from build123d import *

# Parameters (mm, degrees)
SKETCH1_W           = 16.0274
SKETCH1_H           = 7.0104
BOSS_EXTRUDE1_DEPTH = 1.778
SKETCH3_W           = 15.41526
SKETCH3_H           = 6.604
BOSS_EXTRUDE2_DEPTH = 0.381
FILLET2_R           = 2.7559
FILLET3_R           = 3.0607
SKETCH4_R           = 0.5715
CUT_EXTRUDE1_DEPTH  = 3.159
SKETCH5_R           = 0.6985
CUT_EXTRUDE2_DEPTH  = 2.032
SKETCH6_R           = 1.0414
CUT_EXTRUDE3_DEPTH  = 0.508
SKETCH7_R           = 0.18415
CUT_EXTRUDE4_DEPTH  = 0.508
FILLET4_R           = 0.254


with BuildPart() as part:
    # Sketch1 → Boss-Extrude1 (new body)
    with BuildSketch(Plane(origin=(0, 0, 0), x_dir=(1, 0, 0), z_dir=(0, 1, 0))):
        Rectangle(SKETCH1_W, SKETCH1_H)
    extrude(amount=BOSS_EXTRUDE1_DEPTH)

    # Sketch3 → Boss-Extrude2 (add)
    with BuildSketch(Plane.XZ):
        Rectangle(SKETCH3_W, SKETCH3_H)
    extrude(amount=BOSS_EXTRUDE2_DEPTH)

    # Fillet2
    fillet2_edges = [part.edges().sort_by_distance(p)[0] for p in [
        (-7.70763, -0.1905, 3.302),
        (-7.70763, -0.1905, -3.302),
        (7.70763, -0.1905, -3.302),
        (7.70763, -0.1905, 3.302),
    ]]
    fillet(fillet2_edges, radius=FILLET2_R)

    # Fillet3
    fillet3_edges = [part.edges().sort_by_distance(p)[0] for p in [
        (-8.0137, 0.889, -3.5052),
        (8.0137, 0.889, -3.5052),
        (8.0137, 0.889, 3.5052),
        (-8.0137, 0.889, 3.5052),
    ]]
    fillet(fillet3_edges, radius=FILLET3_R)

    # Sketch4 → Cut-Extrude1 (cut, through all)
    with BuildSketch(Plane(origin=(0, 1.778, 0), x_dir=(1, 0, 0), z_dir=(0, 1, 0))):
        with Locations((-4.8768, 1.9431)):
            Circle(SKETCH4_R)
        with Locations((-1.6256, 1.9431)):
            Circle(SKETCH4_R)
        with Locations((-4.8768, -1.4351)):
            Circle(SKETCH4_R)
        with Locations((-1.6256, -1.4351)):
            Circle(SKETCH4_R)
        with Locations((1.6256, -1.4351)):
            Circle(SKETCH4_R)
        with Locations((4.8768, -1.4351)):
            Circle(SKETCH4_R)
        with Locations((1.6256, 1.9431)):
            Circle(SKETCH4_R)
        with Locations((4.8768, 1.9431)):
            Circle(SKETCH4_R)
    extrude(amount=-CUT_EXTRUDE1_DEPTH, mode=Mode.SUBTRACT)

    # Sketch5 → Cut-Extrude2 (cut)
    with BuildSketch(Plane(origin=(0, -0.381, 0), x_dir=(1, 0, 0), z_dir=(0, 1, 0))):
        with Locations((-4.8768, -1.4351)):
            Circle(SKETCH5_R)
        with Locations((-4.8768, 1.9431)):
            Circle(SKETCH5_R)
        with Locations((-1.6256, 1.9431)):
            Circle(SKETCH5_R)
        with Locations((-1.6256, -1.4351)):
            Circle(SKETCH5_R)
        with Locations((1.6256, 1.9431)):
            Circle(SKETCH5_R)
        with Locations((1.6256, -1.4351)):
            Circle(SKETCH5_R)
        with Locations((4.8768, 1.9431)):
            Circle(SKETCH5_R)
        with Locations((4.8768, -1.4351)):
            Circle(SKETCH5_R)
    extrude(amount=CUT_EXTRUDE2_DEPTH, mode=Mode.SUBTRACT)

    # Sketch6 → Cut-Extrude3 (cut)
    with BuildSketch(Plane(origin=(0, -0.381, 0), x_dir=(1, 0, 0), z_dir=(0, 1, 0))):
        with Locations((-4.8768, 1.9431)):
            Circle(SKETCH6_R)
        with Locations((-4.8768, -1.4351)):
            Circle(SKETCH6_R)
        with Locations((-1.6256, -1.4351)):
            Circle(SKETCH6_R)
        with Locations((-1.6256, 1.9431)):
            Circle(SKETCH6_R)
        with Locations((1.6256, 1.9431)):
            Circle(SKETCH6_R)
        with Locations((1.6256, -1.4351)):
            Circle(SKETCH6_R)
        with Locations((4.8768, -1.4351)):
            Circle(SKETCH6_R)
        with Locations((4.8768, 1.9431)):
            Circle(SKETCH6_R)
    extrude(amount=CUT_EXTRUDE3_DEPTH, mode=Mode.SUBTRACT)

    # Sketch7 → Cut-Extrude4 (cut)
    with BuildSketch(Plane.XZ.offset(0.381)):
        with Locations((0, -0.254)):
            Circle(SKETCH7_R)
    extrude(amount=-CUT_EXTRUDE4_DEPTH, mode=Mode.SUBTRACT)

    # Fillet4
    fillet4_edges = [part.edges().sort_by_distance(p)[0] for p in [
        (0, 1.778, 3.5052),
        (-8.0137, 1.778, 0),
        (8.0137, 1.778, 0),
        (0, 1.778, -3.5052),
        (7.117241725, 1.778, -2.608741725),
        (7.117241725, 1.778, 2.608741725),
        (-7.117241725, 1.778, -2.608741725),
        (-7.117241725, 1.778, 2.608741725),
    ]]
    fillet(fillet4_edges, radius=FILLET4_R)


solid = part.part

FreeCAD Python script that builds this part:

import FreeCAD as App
import Part
import Sketcher
Q = App.Units.Quantity


def edges_at(feature, points):
    """Names of the edges that pass closest to the given points."""
    edges = feature.Shape.Edges
    near = lambda p: min(range(len(edges)), key=lambda i: edges[i].distToShape(Part.Vertex(*p))[0])
    return sorted({f"Edge{near(p) + 1}" for p in points})


def add_polygon(sketch, points):
    """Adds a closed chain of lines whose ends are joined by coincident constraints."""
    first, n = sketch.GeometryCount, len(points)
    for a, b in zip(points, points[1:] + points[:1]):
        sketch.addGeometry(Part.LineSegment(App.Vector(*a, 0), App.Vector(*b, 0)), False)
    for i in range(n):
        sketch.addConstraint(Sketcher.Constraint("Coincident", first + i, 2, first + (i + 1) % n, 1))

doc = App.newDocument("Part")
params = doc.addObject("Spreadsheet::Sheet", "Params")
for row, (alias, value) in enumerate([
    ("sketch1_width", "0.631 in"),
    ("sketch1_height", "0.276 in"),
    ("pad1_length", "0.07 in"),
    ("sketch2_height", "0.26 in"),
    ("pad2_length", "0.015 in"),
    ("fillet_radius", "0.1085 in"),
    ("fillet2_radius", "0.1205 in"),
    ("sketch3_diameter", "0.045 in"),
    ("sketch4_diameter", "0.055 in"),
    ("pocket2_length", "0.08 in"),
    ("sketch5_diameter", "0.082 in"),
    ("pocket3_length", "0.02 in"),
    ("pocket4_length", "0.02 in"),
    ("fillet3_radius", "0.01 in"),
], start=1):
    params.set(f"A{row}", alias)
    params.set(f"B{row}", "=" + value)
    params.setAlias(f"B{row}", alias)

body = doc.addObject("PartDesign::Body", "Body")

sketch1 = body.newObject("Sketcher::SketchObject", "Sketch")
sketch1.AttachmentSupport = (doc.getObject("XZ_Plane"), [""])
sketch1.MapMode = "FlatFace"
add_polygon(sketch1, [(-8, -4), (-8, 4), (8, 4), (8, -4)])
sketch1.addConstraint([
    Sketcher.Constraint("Vertical", 0),
    Sketcher.Constraint("Horizontal", 1),
    Sketcher.Constraint("Vertical", 2),
    Sketcher.Constraint("Horizontal", 3),
    Sketcher.Constraint("Symmetric", 0, 2, 2, 2, -1, 1),
    Sketcher.Constraint("DistanceX", 1, 1, 1, 2, Q("0.631 in")),
    Sketcher.Constraint("DistanceY", 0, 1, 0, 2, Q("0.276 in")),
])
sketch1.setExpression("Constraints[9]", "Params.sketch1_width")
sketch1.setExpression("Constraints[10]", "Params.sketch1_height")
pad1 = body.newObject("PartDesign::Pad", "Pad")
pad1.Profile = sketch1
pad1.setExpression("Length", "Params.pad1_length")
pad1.Reversed = True

sketch2 = body.newObject("Sketcher::SketchObject", "Sketch001")
sketch2.AttachmentSupport = (doc.getObject("XZ_Plane"), [""])
sketch2.MapMode = "FlatFace"
add_polygon(sketch2, [(-8, 3), (-8, -3), (8, -3), (8, 3)])
sketch2.addConstraint([
    Sketcher.Constraint("Vertical", 0),
    Sketcher.Constraint("Horizontal", 1),
    Sketcher.Constraint("Vertical", 2),
    Sketcher.Constraint("Horizontal", 3),
    Sketcher.Constraint("Symmetric", 0, 2, 2, 2, -1, 1),
    Sketcher.Constraint("DistanceY", 0, 2, 0, 1, Q("0.26 in")),
    Sketcher.Constraint("DistanceX", 1, 1, 1, 2, Q("0.6069 in")),
])
sketch2.setExpression("Constraints[9]", "Params.sketch2_height")
pad2 = body.newObject("PartDesign::Pad", "Pad001")
pad2.Profile = sketch2
pad2.setExpression("Length", "Params.pad2_length")
doc.recompute()

fillet = body.newObject("PartDesign::Fillet", "Fillet")
fillet.Base = (pad2, edges_at(pad2, [
    (-7.708, -0.191, 3.302),
    (-7.708, -0.191, -3.302),
    (7.708, -0.191, -3.302),
    (7.708, -0.191, 3.302),
]))
fillet.setExpression("Radius", "Params.fillet_radius")
doc.recompute()

fillet2 = body.newObject("PartDesign::Fillet", "Fillet001")
fillet2.Base = (fillet, edges_at(fillet, [
    (-8.014, 0.889, -3.505),
    (8.014, 0.889, -3.505),
    (8.014, 0.889, 3.505),
    (-8.014, 0.889, 3.505),
]))
fillet2.setExpression("Radius", "Params.fillet2_radius")

sketch3 = body.newObject("Sketcher::SketchObject", "Sketch002")
sketch3.AttachmentSupport = (doc.getObject("XZ_Plane"), [""])
sketch3.MapMode = "FlatFace"
sketch3.AttachmentOffset = App.Placement(App.Vector(0, 0, -0.07 * 25.4), App.Rotation())
sketch3.addGeometry([
    Part.Circle(App.Vector(-4.9, -1.9, 0), App.Vector(0, 0, 1), 0.6),
    Part.Circle(App.Vector(-1.6, -1.9, 0), App.Vector(0, 0, 1), 0.6),
    Part.Circle(App.Vector(-4.9, 1.4, 0), App.Vector(0, 0, 1), 0.6),
    Part.Circle(App.Vector(-1.6, 1.4, 0), App.Vector(0, 0, 1), 0.6),
    Part.Circle(App.Vector(1.6, 1.4, 0), App.Vector(0, 0, 1), 0.6),
    Part.Circle(App.Vector(4.9, 1.4, 0), App.Vector(0, 0, 1), 0.6),
    Part.Circle(App.Vector(1.6, -1.9, 0), App.Vector(0, 0, 1), 0.6),
    Part.Circle(App.Vector(4.9, -1.9, 0), App.Vector(0, 0, 1), 0.6),
], False)
sketch3.addConstraint([
    Sketcher.Constraint("Equal", 0, 1),
    Sketcher.Constraint("Equal", 1, 2),
    Sketcher.Constraint("Equal", 2, 3),
    Sketcher.Constraint("Equal", 3, 4),
    Sketcher.Constraint("Equal", 4, 5),
    Sketcher.Constraint("Equal", 5, 6),
    Sketcher.Constraint("Equal", 6, 7),
    Sketcher.Constraint("Symmetric", 3, 3, 4, 3, -2),
    Sketcher.Constraint("Symmetric", 2, 3, 5, 3, -2),
    Sketcher.Constraint("Symmetric", 1, 3, 6, 3, -2),
    Sketcher.Constraint("Symmetric", 0, 3, 7, 3, -2),
    Sketcher.Constraint("Horizontal", 0, 3, 1, 3),
    Sketcher.Constraint("Horizontal", 2, 3, 3, 3),
    Sketcher.Constraint("Vertical", 0, 3, 2, 3),
    Sketcher.Constraint("Vertical", 1, 3, 3, 3),
    Sketcher.Constraint("Diameter", 0, Q("0.045 in")),
    Sketcher.Constraint("DistanceX", 0, 3, -1, 1, Q("0.192 in")),
    Sketcher.Constraint("DistanceX", 1, 3, -1, 1, Q("0.064 in")),
    Sketcher.Constraint("DistanceY", 0, 3, 2, 3, Q("0.133 in")),
    Sketcher.Constraint("DistanceY", 0, 3, -1, 1, Q("0.0765 in")),
])
sketch3.setExpression("Constraints[15]", "Params.sketch3_diameter")
pocket1 = body.newObject("PartDesign::Pocket", "Pocket")
pocket1.Profile = sketch3
pocket1.Type = "ThroughAll"
pocket1.Reversed = True

sketch4 = body.newObject("Sketcher::SketchObject", "Sketch003")
sketch4.AttachmentSupport = (doc.getObject("XZ_Plane"), [""])
sketch4.MapMode = "FlatFace"
sketch4.AttachmentOffset = App.Placement(App.Vector(0, 0, 0.015 * 25.4), App.Rotation())
sketch4.addGeometry([
    Part.Circle(App.Vector(-4.9, 1.4, 0), App.Vector(0, 0, 1), 0.7),
    Part.Circle(App.Vector(-4.9, -1.9, 0), App.Vector(0, 0, 1), 0.7),
    Part.Circle(App.Vector(-1.6, -1.9, 0), App.Vector(0, 0, 1), 0.7),
    Part.Circle(App.Vector(-1.6, 1.4, 0), App.Vector(0, 0, 1), 0.7),
    Part.Circle(App.Vector(1.6, -1.9, 0), App.Vector(0, 0, 1), 0.7),
    Part.Circle(App.Vector(1.6, 1.4, 0), App.Vector(0, 0, 1), 0.7),
    Part.Circle(App.Vector(4.9, -1.9, 0), App.Vector(0, 0, 1), 0.7),
    Part.Circle(App.Vector(4.9, 1.4, 0), App.Vector(0, 0, 1), 0.7),
], False)
sketch4.addConstraint([
    Sketcher.Constraint("Equal", 0, 1),
    Sketcher.Constraint("Equal", 1, 2),
    Sketcher.Constraint("Equal", 2, 3),
    Sketcher.Constraint("Equal", 3, 4),
    Sketcher.Constraint("Equal", 4, 5),
    Sketcher.Constraint("Equal", 5, 6),
    Sketcher.Constraint("Equal", 6, 7),
    Sketcher.Constraint("Symmetric", 2, 3, 4, 3, -2),
    Sketcher.Constraint("Symmetric", 3, 3, 5, 3, -2),
    Sketcher.Constraint("Symmetric", 1, 3, 6, 3, -2),
    Sketcher.Constraint("Symmetric", 0, 3, 7, 3, -2),
    Sketcher.Constraint("Horizontal", 1, 3, 2, 3),
    Sketcher.Constraint("Horizontal", 0, 3, 3, 3),
    Sketcher.Constraint("Vertical", 0, 3, 1, 3),
    Sketcher.Constraint("Vertical", 2, 3, 3, 3),
    Sketcher.Constraint("Diameter", 0, Q("0.055 in")),
    Sketcher.Constraint("DistanceX", 0, 3, -1, 1, Q("0.192 in")),
    Sketcher.Constraint("DistanceX", 2, 3, -1, 1, Q("0.064 in")),
    Sketcher.Constraint("DistanceY", 1, 3, 0, 3, Q("0.133 in")),
    Sketcher.Constraint("DistanceY", -1, 1, 0, 3, Q("0.0565 in")),
])
sketch4.setExpression("Constraints[15]", "Params.sketch4_diameter")
pocket2 = body.newObject("PartDesign::Pocket", "Pocket001")
pocket2.Profile = sketch4
pocket2.setExpression("Length", "Params.pocket2_length")

sketch5 = body.newObject("Sketcher::SketchObject", "Sketch004")
sketch5.AttachmentSupport = (doc.getObject("XZ_Plane"), [""])
sketch5.MapMode = "FlatFace"
sketch5.AttachmentOffset = App.Placement(App.Vector(0, 0, 0.015 * 25.4), App.Rotation())
sketch5.addGeometry([
    Part.Circle(App.Vector(-4.9, -1.9, 0), App.Vector(0, 0, 1), 1),
    Part.Circle(App.Vector(-4.9, 1.4, 0), App.Vector(0, 0, 1), 1),
    Part.Circle(App.Vector(-1.6, 1.4, 0), App.Vector(0, 0, 1), 1),
    Part.Circle(App.Vector(-1.6, -1.9, 0), App.Vector(0, 0, 1), 1),
    Part.Circle(App.Vector(1.6, -1.9, 0), App.Vector(0, 0, 1), 1),
    Part.Circle(App.Vector(1.6, 1.4, 0), App.Vector(0, 0, 1), 1),
    Part.Circle(App.Vector(4.9, 1.4, 0), App.Vector(0, 0, 1), 1),
    Part.Circle(App.Vector(4.9, -1.9, 0), App.Vector(0, 0, 1), 1),
], False)
sketch5.addConstraint([
    Sketcher.Constraint("Equal", 0, 1),
    Sketcher.Constraint("Equal", 1, 2),
    Sketcher.Constraint("Equal", 2, 3),
    Sketcher.Constraint("Equal", 3, 4),
    Sketcher.Constraint("Equal", 4, 5),
    Sketcher.Constraint("Equal", 5, 6),
    Sketcher.Constraint("Equal", 6, 7),
    Sketcher.Constraint("Symmetric", 3, 3, 4, 3, -2),
    Sketcher.Constraint("Symmetric", 2, 3, 5, 3, -2),
    Sketcher.Constraint("Symmetric", 1, 3, 6, 3, -2),
    Sketcher.Constraint("Symmetric", 0, 3, 7, 3, -2),
    Sketcher.Constraint("Horizontal", 1, 3, 2, 3),
    Sketcher.Constraint("Horizontal", 0, 3, 3, 3),
    Sketcher.Constraint("Vertical", 0, 3, 1, 3),
    Sketcher.Constraint("Vertical", 2, 3, 3, 3),
    Sketcher.Constraint("Diameter", 0, Q("0.082 in")),
    Sketcher.Constraint("DistanceX", 0, 3, -1, 1, Q("0.192 in")),
    Sketcher.Constraint("DistanceX", 2, 3, -1, 1, Q("0.064 in")),
    Sketcher.Constraint("DistanceY", 0, 3, 1, 3, Q("0.133 in")),
    Sketcher.Constraint("DistanceY", 0, 3, -1, 1, Q("0.0765 in")),
])
sketch5.setExpression("Constraints[15]", "Params.sketch5_diameter")
pocket3 = body.newObject("PartDesign::Pocket", "Pocket002")
pocket3.Profile = sketch5
pocket3.setExpression("Length", "Params.pocket3_length")

sketch6 = body.newObject("Sketcher::SketchObject", "Sketch005")
sketch6.AttachmentSupport = (doc.getObject("XZ_Plane"), [""])
sketch6.MapMode = "FlatFace"
sketch6.AttachmentOffset = App.Placement(App.Vector(0, 0, 0.015 * 25.4), App.Rotation())
sketch6.addGeometry(Part.Circle(App.Vector(0, -0.25, 0), App.Vector(0, 0, 1), 0.18), False)
sketch6.addConstraint([
    Sketcher.Constraint("PointOnObject", 0, 3, -2),
    Sketcher.Constraint("Diameter", 0, Q("0.0145 in")),
    Sketcher.Constraint("DistanceY", 0, 3, -1, 1, Q("0.01 in")),
])
pocket4 = body.newObject("PartDesign::Pocket", "Pocket003")
pocket4.Profile = sketch6
pocket4.setExpression("Length", "Params.pocket4_length")
doc.recompute()

fillet3 = body.newObject("PartDesign::Fillet", "Fillet002")
fillet3.Base = (pocket4, edges_at(pocket4, [
    (0, 1.778, 3.505),
    (-8.014, 1.778, 0),
    (8.014, 1.778, 0),
    (0, 1.778, -3.505),
    (7.117, 1.778, -2.609),
    (7.117, 1.778, 2.609),
    (-7.117, 1.778, -2.609),
    (-7.117, 1.778, 2.609),
]))
fillet3.setExpression("Radius", "Params.fillet3_radius")

doc.recompute()
